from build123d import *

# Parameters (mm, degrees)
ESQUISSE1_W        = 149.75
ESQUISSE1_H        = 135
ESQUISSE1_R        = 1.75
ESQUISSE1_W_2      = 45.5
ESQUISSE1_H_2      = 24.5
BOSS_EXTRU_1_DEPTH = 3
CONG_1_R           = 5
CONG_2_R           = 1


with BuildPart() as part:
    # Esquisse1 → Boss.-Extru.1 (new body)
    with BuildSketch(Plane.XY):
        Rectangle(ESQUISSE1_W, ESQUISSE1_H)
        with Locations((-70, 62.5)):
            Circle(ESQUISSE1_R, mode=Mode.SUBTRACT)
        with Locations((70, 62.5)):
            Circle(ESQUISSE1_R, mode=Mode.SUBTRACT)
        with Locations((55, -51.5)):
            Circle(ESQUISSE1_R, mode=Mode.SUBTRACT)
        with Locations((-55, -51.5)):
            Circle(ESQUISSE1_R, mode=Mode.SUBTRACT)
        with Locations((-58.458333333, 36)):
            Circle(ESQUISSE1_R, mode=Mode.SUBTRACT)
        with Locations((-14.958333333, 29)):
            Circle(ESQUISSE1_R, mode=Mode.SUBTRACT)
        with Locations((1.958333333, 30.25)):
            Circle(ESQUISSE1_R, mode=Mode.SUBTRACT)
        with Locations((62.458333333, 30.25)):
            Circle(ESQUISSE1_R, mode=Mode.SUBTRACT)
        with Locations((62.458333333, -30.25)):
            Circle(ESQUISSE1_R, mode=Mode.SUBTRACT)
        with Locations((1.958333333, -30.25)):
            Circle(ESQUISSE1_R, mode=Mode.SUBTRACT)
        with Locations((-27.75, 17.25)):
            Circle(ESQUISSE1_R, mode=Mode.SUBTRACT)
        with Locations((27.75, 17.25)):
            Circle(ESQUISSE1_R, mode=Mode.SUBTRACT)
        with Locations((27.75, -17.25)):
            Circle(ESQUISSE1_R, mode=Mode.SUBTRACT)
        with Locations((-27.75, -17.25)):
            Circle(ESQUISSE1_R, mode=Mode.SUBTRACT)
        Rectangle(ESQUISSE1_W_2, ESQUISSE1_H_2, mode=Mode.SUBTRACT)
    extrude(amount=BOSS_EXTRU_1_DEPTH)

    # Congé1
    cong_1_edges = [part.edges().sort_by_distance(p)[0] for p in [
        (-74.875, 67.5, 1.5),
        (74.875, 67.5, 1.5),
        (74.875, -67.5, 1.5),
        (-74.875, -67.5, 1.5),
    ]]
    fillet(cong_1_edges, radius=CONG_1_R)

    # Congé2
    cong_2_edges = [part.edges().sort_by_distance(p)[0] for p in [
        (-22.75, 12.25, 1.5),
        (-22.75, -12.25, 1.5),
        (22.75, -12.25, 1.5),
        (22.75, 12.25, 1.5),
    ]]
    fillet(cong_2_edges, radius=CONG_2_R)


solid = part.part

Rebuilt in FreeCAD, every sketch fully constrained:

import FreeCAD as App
import Part
import Sketcher

V = App.Vector


def edges_at(feature, points):
    """Names of the edges that pass closest to the given points."""
    edges = feature.Shape.Edges
    near = lambda p: min(range(len(edges)), key=lambda i: edges[i].distToShape(Part.Vertex(*p))[0])
    return sorted({f"Edge{near(p) + 1}" for p in points})

doc = App.newDocument("Part")
body = doc.addObject("PartDesign::Body", "Body")

# Sketch on XY plane
sketch1 = body.newObject("Sketcher::SketchObject", "Sketch")
sketch1.AttachmentSupport = (doc.getObject("XY_Plane"), [""])
sketch1.MapMode = "FlatFace"
sketch1.addGeometry(Part.LineSegment(V(-74.9, 67.5, 0), V(-74.9, -67.5, 0)), False)
sketch1.addGeometry(Part.LineSegment(V(-74.9, -67.5, 0), V(74.9, -67.5, 0)), False)
sketch1.addGeometry(Part.LineSegment(V(74.9, -67.5, 0), V(74.9, 67.5, 0)), False)
sketch1.addGeometry(Part.LineSegment(V(74.9, 67.5, 0), V(-74.9, 67.5, 0)), False)
sketch1.addGeometry(Part.Circle(V(-55, -51.5, 0), V(0, 0, 1), 1.8), False)
sketch1.addGeometry(Part.Circle(V(-27.8, -17.2, 0), V(0, 0, 1), 1.8), False)
sketch1.addGeometry(Part.Circle(V(2, -30.2, 0), V(0, 0, 1), 1.8), False)
sketch1.addGeometry(Part.Circle(V(55, -51.5, 0), V(0, 0, 1), 1.8), False)
sketch1.addGeometry(Part.Circle(V(62.5, -30.2, 0), V(0, 0, 1), 1.8), False)
sketch1.addGeometry(Part.Circle(V(27.8, -17.2, 0), V(0, 0, 1), 1.8), False)
sketch1.addGeometry(Part.LineSegment(V(22.8, -12.2, 0), V(-22.8, -12.2, 0)), False)
sketch1.addGeometry(Part.LineSegment(V(-22.8, -12.2, 0), V(-22.8, 12.2, 0)), False)
sketch1.addGeometry(Part.LineSegment(V(-22.8, 12.2, 0), V(22.8, 12.2, 0)), False)
sketch1.addGeometry(Part.LineSegment(V(22.8, 12.2, 0), V(22.8, -12.2, 0)), False)
sketch1.addGeometry(Part.Circle(V(-27.8, 17.2, 0), V(0, 0, 1), 1.8), False)
sketch1.addGeometry(Part.Circle(V(-15, 29, 0), V(0, 0, 1), 1.8), False)
sketch1.addGeometry(Part.Circle(V(-58.5, 36, 0), V(0, 0, 1), 1.8), False)
sketch1.addGeometry(Part.Circle(V(-70, 62.5, 0), V(0, 0, 1), 1.8), False)
sketch1.addGeometry(Part.Circle(V(27.8, 17.2, 0), V(0, 0, 1), 1.8), False)
sketch1.addGeometry(Part.Circle(V(2, 30.2, 0), V(0, 0, 1), 1.8), False)
sketch1.addGeometry(Part.Circle(V(62.5, 30.2, 0), V(0, 0, 1), 1.8), False)
sketch1.addGeometry(Part.Circle(V(70, 62.5, 0), V(0, 0, 1), 1.8), False)
sketch1.addConstraint(Sketcher.Constraint("Coincident", 0, 2, 1, 1))
sketch1.addConstraint(Sketcher.Constraint("Coincident", 1, 2, 2, 1))
sketch1.addConstraint(Sketcher.Constraint("Coincident", 2, 2, 3, 1))
sketch1.addConstraint(Sketcher.Constraint("Coincident", 3, 2, 0, 1))
sketch1.addConstraint(Sketcher.Constraint("Coincident", 10, 2, 11, 1))
sketch1.addConstraint(Sketcher.Constraint("Coincident", 11, 2, 12, 1))
sketch1.addConstraint(Sketcher.Constraint("Coincident", 12, 2, 13, 1))
sketch1.addConstraint(Sketcher.Constraint("Coincident", 13, 2, 10, 1))
sketch1.addConstraint(Sketcher.Constraint("Vertical", 0))
sketch1.addConstraint(Sketcher.Constraint("Horizontal", 1))
sketch1.addConstraint(Sketcher.Constraint("Vertical", 2))
sketch1.addConstraint(Sketcher.Constraint("Horizontal", 3))
sketch1.addConstraint(Sketcher.Constraint("Horizontal", 10))
sketch1.addConstraint(Sketcher.Constraint("Vertical", 11))
sketch1.addConstraint(Sketcher.Constraint("Horizontal", 12))
sketch1.addConstraint(Sketcher.Constraint("Vertical", 13))
sketch1.addConstraint(Sketcher.Constraint("Equal", 4, 5))
sketch1.addConstraint(Sketcher.Constraint("Equal", 5, 6))
sketch1.addConstraint(Sketcher.Constraint("Equal", 6, 7))
sketch1.addConstraint(Sketcher.Constraint("Equal", 7, 8))
sketch1.addConstraint(Sketcher.Constraint("Equal", 8, 9))
sketch1.addConstraint(Sketcher.Constraint("Equal", 9, 14))
sketch1.addConstraint(Sketcher.Constraint("Equal", 14, 15))
sketch1.addConstraint(Sketcher.Constraint("Equal", 15, 16))
sketch1.addConstraint(Sketcher.Constraint("Equal", 16, 17))
sketch1.addConstraint(Sketcher.Constraint("Equal", 17, 18))
sketch1.addConstraint(Sketcher.Constraint("Equal", 18, 19))
sketch1.addConstraint(Sketcher.Constraint("Equal", 19, 20))
sketch1.addConstraint(Sketcher.Constraint("Equal", 20, 21))
sketch1.addConstraint(Sketcher.Constraint("Symmetric", 9, 3, 14, 3, -1, 1))
sketch1.addConstraint(Sketcher.Constraint("Symmetric", 5, 3, 18, 3, -1, 1))
sketch1.addConstraint(Sketcher.Constraint("Symmetric", 0, 2, 2, 2, -1, 1))
sketch1.addConstraint(Sketcher.Constraint("Symmetric", 10, 2, 12, 2, -1, 1))
sketch1.addConstraint(Sketcher.Constraint("Symmetric", 4, 3, 7, 3, -2))
sketch1.addConstraint(Sketcher.Constraint("Symmetric", 5, 3, 9, 3, -2))
sketch1.addConstraint(Sketcher.Constraint("Symmetric", 17, 3, 21, 3, -2))
sketch1.addConstraint(Sketcher.Constraint("Symmetric", 6, 3, 19, 3, -1))
sketch1.addConstraint(Sketcher.Constraint("Symmetric", 8, 3, 20, 3, -1))
sketch1.addConstraint(Sketcher.Constraint("Horizontal", 6, 3, 8, 3))
sketch1.addConstraint(Sketcher.Constraint("Diameter", 4, 3.5))
sketch1.addConstraint(Sketcher.Constraint("DistanceY", 0, 2, 0, 1, 135.0))
sketch1.addConstraint(Sketcher.Constraint("DistanceX", 10, 2, 10, 1, 45.5))
sketch1.addConstraint(Sketcher.Constraint("DistanceY", 11, 1, 11, 2, 24.5))
sketch1.addConstraint(Sketcher.Constraint("DistanceX", 4, 3, -1, 1, 55.0))
sketch1.addConstraint(Sketcher.Constraint("DistanceY", -1, 1, 15, 3, 29.0))
sketch1.addConstraint(Sketcher.Constraint("DistanceY", -1, 1, 16, 3, 36.0))
sketch1.addConstraint(Sketcher.Constraint("DistanceX", 17, 3, -1, 1, 70.0))
sketch1.addConstraint(Sketcher.Constraint("DistanceY", 6, 3, 5, 3, 13.0))
sketch1.addConstraint(Sketcher.Constraint("DistanceY", 4, 3, 17, 3, 114.0))
sketch1.addConstraint(Sketcher.Constraint("DistanceY", 0, 2, 4, 3, 16.0))
sketch1.addConstraint(Sketcher.Constraint("DistanceX", 5, 3, 10, 2, 5.0))
sketch1.addConstraint(Sketcher.Constraint("DistanceY", 5, 3, 10, 2, 5.0))
sketch1.addConstraint(Sketcher.Constraint("DistanceX", 1, 1, 1, 2, 149.75))
sketch1.addConstraint(Sketcher.Constraint("DistanceX", 6, 3, 8, 3, 60.5))
sketch1.addConstraint(Sketcher.Constraint("DistanceX", 16, 3, 15, 3, 43.5))
sketch1.addConstraint(Sketcher.Constraint("DistanceX", -1, 1, 6, 3, 1.958333))
sketch1.addConstraint(Sketcher.Constraint("DistanceX", 15, 3, -1, 1, 14.958333))
pad1 = body.newObject("PartDesign::Pad", "Pad")
pad1.Profile = sketch1
pad1.Length = 3
doc.recompute()

fillet = body.newObject("PartDesign::Fillet", "Fillet")
fillet.Base = (pad1, edges_at(pad1, [
    (-74.875, 67.5, 1.5),
    (74.875, 67.5, 1.5),
    (74.875, -67.5, 1.5),
    (-74.875, -67.5, 1.5),
]))
fillet.Radius = 5
doc.recompute()

fillet2 = body.newObject("PartDesign::Fillet", "Fillet001")
fillet2.Base = (fillet, edges_at(fillet, [
    (-22.75, 12.25, 1.5),
    (-22.75, -12.25, 1.5),
    (22.75, -12.25, 1.5),
    (22.75, 12.25, 1.5),
]))
fillet2.Radius = 1

doc.recompute()
